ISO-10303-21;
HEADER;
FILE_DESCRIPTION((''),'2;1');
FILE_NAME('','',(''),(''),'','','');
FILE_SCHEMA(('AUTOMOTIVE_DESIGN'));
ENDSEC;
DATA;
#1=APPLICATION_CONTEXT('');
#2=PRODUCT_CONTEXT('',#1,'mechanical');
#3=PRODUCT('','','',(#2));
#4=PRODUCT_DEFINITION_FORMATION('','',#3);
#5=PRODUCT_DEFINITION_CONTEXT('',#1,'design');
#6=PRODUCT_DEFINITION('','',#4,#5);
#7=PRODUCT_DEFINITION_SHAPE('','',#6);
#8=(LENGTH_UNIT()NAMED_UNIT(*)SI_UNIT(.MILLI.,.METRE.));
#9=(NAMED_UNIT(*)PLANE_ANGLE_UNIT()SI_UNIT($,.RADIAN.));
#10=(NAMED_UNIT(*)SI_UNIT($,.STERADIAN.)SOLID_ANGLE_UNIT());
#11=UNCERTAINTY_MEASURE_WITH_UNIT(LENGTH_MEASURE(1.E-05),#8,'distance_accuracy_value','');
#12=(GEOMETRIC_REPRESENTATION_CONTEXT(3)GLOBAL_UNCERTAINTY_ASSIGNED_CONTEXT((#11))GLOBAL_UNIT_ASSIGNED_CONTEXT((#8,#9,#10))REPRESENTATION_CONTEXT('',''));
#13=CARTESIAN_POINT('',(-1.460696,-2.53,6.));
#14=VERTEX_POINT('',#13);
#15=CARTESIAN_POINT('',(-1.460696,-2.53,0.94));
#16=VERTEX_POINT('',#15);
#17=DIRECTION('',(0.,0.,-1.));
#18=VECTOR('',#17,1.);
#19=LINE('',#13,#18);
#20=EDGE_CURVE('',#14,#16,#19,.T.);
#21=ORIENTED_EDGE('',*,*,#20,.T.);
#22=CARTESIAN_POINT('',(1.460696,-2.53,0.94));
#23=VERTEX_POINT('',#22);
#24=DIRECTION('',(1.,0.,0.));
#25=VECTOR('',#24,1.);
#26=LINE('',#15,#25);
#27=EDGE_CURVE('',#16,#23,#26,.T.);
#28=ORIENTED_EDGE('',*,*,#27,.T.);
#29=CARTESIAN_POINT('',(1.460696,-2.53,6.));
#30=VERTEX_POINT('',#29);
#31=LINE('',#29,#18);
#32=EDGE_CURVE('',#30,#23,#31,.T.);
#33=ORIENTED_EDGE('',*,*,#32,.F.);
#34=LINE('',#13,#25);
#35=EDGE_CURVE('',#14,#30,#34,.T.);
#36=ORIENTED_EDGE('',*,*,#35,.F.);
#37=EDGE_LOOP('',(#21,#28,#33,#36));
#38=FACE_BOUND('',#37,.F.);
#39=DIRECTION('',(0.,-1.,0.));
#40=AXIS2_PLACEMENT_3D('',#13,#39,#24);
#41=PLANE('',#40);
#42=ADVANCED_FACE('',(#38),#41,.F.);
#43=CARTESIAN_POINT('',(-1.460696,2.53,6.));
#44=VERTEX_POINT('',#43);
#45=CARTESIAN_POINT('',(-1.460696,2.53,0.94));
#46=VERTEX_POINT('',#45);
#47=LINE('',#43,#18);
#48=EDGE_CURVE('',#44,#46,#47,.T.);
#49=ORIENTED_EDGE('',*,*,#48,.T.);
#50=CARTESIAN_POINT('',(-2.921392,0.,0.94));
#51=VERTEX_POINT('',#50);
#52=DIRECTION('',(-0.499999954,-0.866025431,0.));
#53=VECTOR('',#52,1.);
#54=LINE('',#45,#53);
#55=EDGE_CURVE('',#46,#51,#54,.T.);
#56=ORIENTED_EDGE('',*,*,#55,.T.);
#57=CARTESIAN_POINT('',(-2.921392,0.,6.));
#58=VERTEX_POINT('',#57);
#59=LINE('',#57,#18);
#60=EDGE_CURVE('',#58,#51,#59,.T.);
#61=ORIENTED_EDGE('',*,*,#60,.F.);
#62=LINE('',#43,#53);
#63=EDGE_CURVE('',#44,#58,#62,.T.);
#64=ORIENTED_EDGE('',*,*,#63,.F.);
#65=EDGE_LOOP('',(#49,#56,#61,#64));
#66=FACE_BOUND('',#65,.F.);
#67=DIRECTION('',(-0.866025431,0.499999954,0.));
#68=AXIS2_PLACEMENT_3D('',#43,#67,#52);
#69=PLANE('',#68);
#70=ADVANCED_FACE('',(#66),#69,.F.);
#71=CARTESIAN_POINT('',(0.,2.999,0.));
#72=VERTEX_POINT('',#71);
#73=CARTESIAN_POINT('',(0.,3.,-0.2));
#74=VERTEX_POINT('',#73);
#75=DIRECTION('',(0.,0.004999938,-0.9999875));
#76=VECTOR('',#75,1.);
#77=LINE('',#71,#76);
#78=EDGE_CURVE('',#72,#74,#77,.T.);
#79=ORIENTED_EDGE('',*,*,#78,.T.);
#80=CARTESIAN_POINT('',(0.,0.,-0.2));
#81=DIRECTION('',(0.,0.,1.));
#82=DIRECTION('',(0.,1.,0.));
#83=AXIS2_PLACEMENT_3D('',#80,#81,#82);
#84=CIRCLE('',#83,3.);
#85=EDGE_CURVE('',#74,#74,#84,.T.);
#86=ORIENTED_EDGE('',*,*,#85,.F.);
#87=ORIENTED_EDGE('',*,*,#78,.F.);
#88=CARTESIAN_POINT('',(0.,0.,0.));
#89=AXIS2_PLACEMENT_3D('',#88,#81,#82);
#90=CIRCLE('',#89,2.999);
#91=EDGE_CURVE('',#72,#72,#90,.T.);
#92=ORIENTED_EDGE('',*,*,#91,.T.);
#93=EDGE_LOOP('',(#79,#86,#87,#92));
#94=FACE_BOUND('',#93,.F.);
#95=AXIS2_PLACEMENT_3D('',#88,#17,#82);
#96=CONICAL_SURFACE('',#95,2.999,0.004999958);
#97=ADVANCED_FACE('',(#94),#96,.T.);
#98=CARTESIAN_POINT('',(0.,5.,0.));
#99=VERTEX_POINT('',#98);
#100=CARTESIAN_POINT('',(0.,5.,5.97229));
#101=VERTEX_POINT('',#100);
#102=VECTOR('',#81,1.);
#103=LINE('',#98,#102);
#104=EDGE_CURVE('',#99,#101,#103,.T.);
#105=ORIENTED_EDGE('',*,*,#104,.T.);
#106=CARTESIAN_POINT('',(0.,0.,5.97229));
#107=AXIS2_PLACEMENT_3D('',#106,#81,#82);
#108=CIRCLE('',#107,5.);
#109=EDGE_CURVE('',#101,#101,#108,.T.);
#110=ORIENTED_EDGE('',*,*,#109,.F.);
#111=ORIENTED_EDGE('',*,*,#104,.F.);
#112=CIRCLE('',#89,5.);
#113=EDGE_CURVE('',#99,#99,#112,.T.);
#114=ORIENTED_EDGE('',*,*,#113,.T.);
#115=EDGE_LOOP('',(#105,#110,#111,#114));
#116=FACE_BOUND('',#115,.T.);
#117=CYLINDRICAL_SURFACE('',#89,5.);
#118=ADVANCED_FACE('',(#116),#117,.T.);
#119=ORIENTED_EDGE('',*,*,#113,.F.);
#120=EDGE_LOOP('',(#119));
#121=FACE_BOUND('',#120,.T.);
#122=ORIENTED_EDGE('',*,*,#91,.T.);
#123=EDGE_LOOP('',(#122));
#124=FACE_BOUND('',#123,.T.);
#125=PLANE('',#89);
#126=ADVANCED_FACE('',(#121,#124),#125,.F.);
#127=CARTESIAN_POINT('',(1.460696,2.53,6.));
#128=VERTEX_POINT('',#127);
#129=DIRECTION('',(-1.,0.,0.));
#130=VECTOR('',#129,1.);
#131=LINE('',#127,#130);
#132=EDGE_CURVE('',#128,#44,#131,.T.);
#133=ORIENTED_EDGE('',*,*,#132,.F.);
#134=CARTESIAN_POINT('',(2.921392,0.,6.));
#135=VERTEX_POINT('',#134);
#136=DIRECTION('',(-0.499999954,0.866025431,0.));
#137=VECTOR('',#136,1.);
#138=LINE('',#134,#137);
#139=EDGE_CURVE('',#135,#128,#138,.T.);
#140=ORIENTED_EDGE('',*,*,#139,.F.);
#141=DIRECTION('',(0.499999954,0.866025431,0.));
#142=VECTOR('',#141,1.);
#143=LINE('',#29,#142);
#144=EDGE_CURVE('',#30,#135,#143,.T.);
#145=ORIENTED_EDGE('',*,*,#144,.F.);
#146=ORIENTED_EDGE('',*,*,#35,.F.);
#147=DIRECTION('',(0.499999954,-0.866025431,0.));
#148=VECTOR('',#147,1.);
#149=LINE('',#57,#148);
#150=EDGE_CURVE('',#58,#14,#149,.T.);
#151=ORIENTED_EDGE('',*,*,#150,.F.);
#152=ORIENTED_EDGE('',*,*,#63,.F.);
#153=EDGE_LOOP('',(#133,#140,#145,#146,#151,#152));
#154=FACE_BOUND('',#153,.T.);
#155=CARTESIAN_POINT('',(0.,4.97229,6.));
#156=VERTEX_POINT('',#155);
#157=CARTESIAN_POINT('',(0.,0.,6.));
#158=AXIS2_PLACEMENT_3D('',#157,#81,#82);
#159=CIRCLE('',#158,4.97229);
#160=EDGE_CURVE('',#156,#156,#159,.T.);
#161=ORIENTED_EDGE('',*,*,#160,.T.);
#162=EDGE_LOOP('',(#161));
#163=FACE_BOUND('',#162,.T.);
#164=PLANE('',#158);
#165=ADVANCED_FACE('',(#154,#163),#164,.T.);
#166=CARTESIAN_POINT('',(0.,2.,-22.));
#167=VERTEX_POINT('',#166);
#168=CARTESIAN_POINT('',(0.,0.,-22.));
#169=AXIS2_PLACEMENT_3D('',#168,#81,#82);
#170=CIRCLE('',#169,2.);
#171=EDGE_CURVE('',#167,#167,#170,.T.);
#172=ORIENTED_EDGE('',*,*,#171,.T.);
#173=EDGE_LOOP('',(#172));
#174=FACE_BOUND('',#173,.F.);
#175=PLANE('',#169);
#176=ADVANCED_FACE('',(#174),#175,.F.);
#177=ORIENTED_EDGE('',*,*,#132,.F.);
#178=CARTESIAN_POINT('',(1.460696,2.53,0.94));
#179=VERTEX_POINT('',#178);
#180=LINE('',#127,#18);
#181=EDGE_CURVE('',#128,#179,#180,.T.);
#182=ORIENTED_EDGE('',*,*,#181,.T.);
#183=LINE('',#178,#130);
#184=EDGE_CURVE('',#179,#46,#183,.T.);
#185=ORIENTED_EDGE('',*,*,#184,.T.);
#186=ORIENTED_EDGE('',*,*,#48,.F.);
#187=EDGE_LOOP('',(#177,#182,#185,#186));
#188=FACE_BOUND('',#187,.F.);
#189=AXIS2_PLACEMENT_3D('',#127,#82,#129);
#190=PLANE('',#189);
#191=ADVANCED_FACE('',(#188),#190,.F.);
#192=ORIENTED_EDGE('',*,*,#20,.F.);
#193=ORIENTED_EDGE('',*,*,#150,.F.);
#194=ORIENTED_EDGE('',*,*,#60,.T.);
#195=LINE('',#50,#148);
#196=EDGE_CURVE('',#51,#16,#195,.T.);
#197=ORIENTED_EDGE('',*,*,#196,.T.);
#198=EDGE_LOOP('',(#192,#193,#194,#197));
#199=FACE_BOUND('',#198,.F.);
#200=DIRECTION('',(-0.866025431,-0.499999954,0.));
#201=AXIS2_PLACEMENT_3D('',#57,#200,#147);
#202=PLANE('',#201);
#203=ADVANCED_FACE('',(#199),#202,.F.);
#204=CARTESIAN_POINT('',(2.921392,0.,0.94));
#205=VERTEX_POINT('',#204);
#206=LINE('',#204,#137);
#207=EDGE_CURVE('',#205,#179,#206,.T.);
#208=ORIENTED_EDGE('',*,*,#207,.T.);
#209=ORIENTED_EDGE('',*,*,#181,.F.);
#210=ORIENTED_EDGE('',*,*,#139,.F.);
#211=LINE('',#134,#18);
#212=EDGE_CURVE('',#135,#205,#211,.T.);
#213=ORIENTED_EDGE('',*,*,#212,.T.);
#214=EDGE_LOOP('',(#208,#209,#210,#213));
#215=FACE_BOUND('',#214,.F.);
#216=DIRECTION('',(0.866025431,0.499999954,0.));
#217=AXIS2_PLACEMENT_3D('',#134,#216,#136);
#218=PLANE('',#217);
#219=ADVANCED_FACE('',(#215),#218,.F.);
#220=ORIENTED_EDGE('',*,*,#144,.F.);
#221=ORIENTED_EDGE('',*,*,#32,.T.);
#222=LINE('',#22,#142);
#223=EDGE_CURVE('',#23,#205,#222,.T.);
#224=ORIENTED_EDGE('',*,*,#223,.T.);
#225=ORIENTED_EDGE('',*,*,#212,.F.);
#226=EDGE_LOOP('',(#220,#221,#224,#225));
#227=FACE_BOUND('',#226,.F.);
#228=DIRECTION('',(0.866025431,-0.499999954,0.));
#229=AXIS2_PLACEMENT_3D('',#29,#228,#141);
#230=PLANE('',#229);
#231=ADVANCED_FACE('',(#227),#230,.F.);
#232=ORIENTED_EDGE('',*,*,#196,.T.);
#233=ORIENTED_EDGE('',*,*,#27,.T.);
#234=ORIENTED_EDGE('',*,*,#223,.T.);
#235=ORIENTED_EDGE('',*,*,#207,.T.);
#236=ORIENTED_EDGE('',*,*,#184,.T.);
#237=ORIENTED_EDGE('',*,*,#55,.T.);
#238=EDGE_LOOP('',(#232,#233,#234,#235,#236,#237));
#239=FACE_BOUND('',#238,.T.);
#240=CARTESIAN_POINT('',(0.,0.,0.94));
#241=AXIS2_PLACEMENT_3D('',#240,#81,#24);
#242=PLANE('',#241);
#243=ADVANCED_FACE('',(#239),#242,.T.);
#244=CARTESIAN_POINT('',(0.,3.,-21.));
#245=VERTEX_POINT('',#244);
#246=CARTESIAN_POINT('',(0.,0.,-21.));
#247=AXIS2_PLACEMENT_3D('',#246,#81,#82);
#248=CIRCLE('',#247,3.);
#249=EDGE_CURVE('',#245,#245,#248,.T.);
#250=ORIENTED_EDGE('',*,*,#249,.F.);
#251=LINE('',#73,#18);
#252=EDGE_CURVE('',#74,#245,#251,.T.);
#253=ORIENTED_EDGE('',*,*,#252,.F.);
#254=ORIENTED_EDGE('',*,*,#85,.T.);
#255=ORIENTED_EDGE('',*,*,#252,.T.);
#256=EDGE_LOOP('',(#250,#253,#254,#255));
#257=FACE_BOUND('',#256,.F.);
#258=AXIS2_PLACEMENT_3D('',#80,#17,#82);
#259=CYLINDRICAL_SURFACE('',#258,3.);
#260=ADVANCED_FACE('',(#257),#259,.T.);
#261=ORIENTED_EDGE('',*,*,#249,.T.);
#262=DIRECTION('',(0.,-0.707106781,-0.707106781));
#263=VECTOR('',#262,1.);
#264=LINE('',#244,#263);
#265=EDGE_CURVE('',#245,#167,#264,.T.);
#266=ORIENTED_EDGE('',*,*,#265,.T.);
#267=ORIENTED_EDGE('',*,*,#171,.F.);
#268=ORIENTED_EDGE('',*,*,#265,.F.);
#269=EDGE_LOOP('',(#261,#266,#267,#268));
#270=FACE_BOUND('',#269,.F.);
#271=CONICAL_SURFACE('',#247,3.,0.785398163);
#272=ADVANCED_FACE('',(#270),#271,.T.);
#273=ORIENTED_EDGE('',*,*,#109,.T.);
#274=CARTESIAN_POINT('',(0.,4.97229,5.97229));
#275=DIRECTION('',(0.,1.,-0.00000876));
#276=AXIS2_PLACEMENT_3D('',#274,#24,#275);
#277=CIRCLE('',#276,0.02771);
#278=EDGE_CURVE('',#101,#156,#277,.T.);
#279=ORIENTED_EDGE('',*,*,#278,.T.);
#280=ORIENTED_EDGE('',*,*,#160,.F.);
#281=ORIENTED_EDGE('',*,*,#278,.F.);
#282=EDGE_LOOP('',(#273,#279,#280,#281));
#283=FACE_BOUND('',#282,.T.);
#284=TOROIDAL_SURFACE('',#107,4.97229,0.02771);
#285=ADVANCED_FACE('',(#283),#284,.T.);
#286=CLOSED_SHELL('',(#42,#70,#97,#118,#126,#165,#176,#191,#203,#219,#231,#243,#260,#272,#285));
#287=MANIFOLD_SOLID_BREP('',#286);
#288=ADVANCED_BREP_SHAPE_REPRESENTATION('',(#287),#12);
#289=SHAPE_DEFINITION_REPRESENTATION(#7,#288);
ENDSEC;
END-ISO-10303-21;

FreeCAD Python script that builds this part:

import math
import FreeCAD as App
import Part
import Sketcher
Q = App.Units.Quantity

doc = App.newDocument("Part")
body = doc.addObject("PartDesign::Body", "Body")

# Sketch on YZ plane
sketch1 = body.newObject("Sketcher::SketchObject", "Sketch")
sketch1.AttachmentSupport = (doc.getObject("YZ_Plane"), [""])
sketch1.MapMode = "FlatFace"
sketch1.addGeometry([
    Part.LineSegment(App.Vector(2.999, 0, 0), App.Vector(5, 0, 0)),  # 0
    Part.LineSegment(App.Vector(5, 0, 0), App.Vector(5, 5.97229, 0)),  # 1
    Part.ArcOfCircle(Part.Circle(App.Vector(4.97229, 5.97229, 0), App.Vector(0, 0, 1), 0.02771), math.radians(-0.000502), math.radians(90.000502)),  # 2
    Part.LineSegment(App.Vector(4.97229, 6, 0), App.Vector(0, 6, 0)),  # 3
    Part.LineSegment(App.Vector(0, 6, 0), App.Vector(0, -22, 0)),  # 4
    Part.LineSegment(App.Vector(0, -22, 0), App.Vector(2, -22, 0)),  # 5
    Part.LineSegment(App.Vector(2, -22, 0), App.Vector(3, -21, 0)),  # 6
    Part.LineSegment(App.Vector(3, -21, 0), App.Vector(3, -0.2, 0)),  # 7
    Part.LineSegment(App.Vector(3, -0.2, 0), App.Vector(2.999, 0, 0)),  # 8
], False)
sketch1.addConstraint([
    Sketcher.Constraint("Coincident", 0, 2, 1, 1),
    Sketcher.Constraint("Coincident", 1, 2, 2, 1),
    Sketcher.Constraint("Coincident", 2, 2, 3, 1),
    Sketcher.Constraint("Coincident", 3, 2, 4, 1),
    Sketcher.Constraint("Coincident", 4, 2, 5, 1),
    Sketcher.Constraint("Coincident", 5, 2, 6, 1),
    Sketcher.Constraint("Coincident", 6, 2, 7, 1),
    Sketcher.Constraint("Coincident", 7, 2, 8, 1),
    Sketcher.Constraint("Coincident", 8, 2, 0, 1),
    Sketcher.Constraint("Horizontal", 0),
    Sketcher.Constraint("Vertical", 1),
    Sketcher.Constraint("Horizontal", 3),
    Sketcher.Constraint("Vertical", 4),
    Sketcher.Constraint("Horizontal", 5),
    Sketcher.Constraint("Vertical", 7),
    Sketcher.Constraint("PointOnObject", 0, 2, -1),
    Sketcher.Constraint("PointOnObject", 3, 2, -2),
    Sketcher.Constraint("Horizontal", 2, 3, 1, 2),
    Sketcher.Constraint("DistanceX", 5, 1, 5, 2, Q("2 mm")),
    Sketcher.Constraint("DistanceY", 4, 2, 4, 1, Q("28 mm")),
    Sketcher.Constraint("Angle", 6, Q("45 deg")),
    Sketcher.Constraint("DistanceY", 7, 1, 7, 2, Q("20.8 mm")),
    Sketcher.Constraint("DistanceX", -1, 1, 0, 2, Q("5 mm")),
    Sketcher.Constraint("DistanceY", -1, 1, 2, 2, Q("6 mm")),
    Sketcher.Constraint("DistanceX", -1, 1, 6, 2, Q("3 mm")),
    Sketcher.Constraint("DistanceX", 0, 1, 0, 2, Q("2.001 mm")),
    Sketcher.Constraint("Radius", 2, Q("0.02771 mm")),
    Sketcher.Constraint("DistanceX", 3, 2, 3, 1, Q("4.97229 mm")),
])
revolution = body.newObject("PartDesign::Revolution", "Revolution")
revolution.Profile = sketch1
revolution.ReferenceAxis = (sketch1, ["V_Axis"])
revolution.Angle = 360

# Sketch on XY plane
sketch2 = body.newObject("Sketcher::SketchObject", "Sketch001")
sketch2.AttachmentSupport = (doc.getObject("XY_Plane"), [""])
sketch2.MapMode = "FlatFace"
sketch2.AttachmentOffset = App.Placement(App.Vector(0, 0, 6), App.Rotation())
sketch2.addGeometry([
    Part.LineSegment(App.Vector(2.921392, 0, 0), App.Vector(1.460696, 2.53, 0)),  # 0
    Part.LineSegment(App.Vector(1.460696, 2.53, 0), App.Vector(-1.460696, 2.53, 0)),  # 1
    Part.LineSegment(App.Vector(-1.460696, 2.53, 0), App.Vector(-2.921392, 0, 0)),  # 2
    Part.LineSegment(App.Vector(-2.921392, 0, 0), App.Vector(-1.460696, -2.53, 0)),  # 3
    Part.LineSegment(App.Vector(-1.460696, -2.53, 0), App.Vector(1.460696, -2.53, 0)),  # 4
    Part.LineSegment(App.Vector(1.460696, -2.53, 0), App.Vector(2.921392, 0, 0)),  # 5
], False)
sketch2.addConstraint([
    Sketcher.Constraint("Coincident", 0, 2, 1, 1),
    Sketcher.Constraint("Coincident", 1, 2, 2, 1),
    Sketcher.Constraint("Coincident", 2, 2, 3, 1),
    Sketcher.Constraint("Coincident", 3, 2, 4, 1),
    Sketcher.Constraint("Coincident", 4, 2, 5, 1),
    Sketcher.Constraint("Coincident", 5, 2, 0, 1),
    Sketcher.Constraint("Horizontal", 1),
    Sketcher.Constraint("Horizontal", 4),
    Sketcher.Constraint("Symmetric", 0, 2, 3, 2, -1, 1),
    Sketcher.Constraint("Symmetric", 2, 2, 5, 2, -1, 1),
    Sketcher.Constraint("PointOnObject", 2, 2, -1),
    Sketcher.Constraint("Parallel", 2, 5),
    Sketcher.Constraint("Vertical", 1, 2, 3, 2),
    Sketcher.Constraint("Angle", 0, Q("119.999997 deg")),
    Sketcher.Constraint("DistanceY", -1, 1, 0, 2, Q("2.53 mm")),
    Sketcher.Constraint("DistanceX", 1, 2, 1, 1, Q("2.921392 mm")),
])
pocket1 = body.newObject("PartDesign::Pocket", "Pocket")
pocket1.Profile = sketch2
pocket1.Length = 5.06

doc.recompute()
